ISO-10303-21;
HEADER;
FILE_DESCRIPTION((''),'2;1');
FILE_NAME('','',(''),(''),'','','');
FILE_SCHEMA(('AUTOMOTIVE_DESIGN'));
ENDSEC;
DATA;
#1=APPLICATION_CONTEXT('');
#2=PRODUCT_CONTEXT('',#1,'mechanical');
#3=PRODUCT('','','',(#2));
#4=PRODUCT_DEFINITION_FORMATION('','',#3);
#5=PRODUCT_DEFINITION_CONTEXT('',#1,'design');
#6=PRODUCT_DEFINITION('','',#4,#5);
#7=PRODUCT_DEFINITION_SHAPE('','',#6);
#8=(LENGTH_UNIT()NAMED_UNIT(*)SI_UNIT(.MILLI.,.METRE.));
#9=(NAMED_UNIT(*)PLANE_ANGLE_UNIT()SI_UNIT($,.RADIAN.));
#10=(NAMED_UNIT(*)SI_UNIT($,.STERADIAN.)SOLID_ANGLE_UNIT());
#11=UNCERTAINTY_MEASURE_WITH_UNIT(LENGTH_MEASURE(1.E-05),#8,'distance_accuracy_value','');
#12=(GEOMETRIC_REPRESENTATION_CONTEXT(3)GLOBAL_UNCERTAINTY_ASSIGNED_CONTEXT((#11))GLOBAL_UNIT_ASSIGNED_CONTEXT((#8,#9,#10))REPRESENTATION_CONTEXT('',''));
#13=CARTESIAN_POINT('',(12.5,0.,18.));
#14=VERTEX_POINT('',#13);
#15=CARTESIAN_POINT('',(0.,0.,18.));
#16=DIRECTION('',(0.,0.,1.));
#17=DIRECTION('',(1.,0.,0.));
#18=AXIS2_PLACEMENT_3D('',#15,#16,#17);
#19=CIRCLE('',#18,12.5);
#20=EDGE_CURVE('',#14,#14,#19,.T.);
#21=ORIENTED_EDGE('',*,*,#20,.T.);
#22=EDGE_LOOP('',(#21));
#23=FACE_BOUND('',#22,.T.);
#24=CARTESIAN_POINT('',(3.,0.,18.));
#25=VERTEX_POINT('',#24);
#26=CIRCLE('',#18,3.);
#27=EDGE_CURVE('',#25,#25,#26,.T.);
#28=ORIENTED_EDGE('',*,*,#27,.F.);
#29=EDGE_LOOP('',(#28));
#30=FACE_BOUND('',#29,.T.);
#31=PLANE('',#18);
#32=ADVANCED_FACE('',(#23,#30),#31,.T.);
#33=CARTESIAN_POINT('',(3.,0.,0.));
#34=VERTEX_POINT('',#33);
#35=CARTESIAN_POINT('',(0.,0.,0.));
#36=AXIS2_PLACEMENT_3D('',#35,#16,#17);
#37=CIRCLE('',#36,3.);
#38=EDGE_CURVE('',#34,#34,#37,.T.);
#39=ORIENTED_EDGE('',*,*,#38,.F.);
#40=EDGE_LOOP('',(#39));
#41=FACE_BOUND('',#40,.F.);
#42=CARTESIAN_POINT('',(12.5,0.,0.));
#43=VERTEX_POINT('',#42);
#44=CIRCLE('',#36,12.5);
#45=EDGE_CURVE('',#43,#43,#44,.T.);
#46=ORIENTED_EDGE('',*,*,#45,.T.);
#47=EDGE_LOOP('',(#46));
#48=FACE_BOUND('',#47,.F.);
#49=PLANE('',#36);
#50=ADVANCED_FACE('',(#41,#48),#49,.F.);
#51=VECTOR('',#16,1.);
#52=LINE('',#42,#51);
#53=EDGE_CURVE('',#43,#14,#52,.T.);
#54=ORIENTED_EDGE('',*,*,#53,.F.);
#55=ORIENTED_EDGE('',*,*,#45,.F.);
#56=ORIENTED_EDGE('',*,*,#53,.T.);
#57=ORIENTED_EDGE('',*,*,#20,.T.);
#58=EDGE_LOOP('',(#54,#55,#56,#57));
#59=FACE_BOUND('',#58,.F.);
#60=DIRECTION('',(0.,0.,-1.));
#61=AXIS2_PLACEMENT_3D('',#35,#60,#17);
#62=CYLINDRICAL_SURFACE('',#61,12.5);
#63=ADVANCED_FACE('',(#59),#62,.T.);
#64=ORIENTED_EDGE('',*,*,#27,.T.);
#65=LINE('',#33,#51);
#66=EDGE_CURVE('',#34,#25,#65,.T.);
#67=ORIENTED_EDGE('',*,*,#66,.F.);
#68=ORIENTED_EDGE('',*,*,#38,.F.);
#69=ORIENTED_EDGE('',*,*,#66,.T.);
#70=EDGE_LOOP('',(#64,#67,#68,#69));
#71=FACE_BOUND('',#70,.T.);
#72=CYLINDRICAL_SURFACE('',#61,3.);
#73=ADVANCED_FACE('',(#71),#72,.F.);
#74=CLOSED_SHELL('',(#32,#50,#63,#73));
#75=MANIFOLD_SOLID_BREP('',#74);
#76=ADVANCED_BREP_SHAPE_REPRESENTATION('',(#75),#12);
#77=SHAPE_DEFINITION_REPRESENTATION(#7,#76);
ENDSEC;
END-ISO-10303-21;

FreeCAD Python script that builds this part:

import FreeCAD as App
import Part
import Sketcher
from FreeCAD import Vector
Q = App.Units.Quantity

doc = App.newDocument("Part")
body = doc.addObject("PartDesign::Body", "Body")

# Sketch on XY plane
sketch1 = body.newObject("Sketcher::SketchObject", "Sketch")
sketch1.AttachmentSupport = (doc.getObject("XY_Plane"), [""])
sketch1.MapMode = "FlatFace"
sketch1.addGeometry(Part.Circle(Vector(0, 0, 0), Vector(0, 0, 1), 3), False)
sketch1.addConstraint([
    Sketcher.Constraint("Coincident", 0, 3, -1, 1),
    Sketcher.Constraint("Diameter", 0, Q("6 mm")),
])
pad1 = body.newObject("PartDesign::Pad", "Pad")
pad1.Profile = sketch1
pad1.Length = 18
body2 = doc.addObject("PartDesign::Body", "Body001")

# Sketch on XY plane
sketch2 = body2.newObject("Sketcher::SketchObject", "Sketch001")
sketch2.AttachmentSupport = (doc.getObject("XY_Plane001"), [""])
sketch2.MapMode = "FlatFace"
sketch2.addGeometry(Part.Circle(Vector(0, 0, 0), Vector(0, 0, 1), 12.5), False)
sketch2.addConstraint([
    Sketcher.Constraint("Coincident", 0, 3, -1, 1),
    Sketcher.Constraint("Diameter", 0, Q("25 mm")),
])
pad2 = body2.newObject("PartDesign::Pad", "Pad001")
pad2.Profile = sketch2
pad2.Length = 18
doc.recompute()

boolean = body2.newObject("PartDesign::Boolean", "Boolean")
boolean.Type = "Cut"
boolean.addObjects([body])

doc.recompute()
